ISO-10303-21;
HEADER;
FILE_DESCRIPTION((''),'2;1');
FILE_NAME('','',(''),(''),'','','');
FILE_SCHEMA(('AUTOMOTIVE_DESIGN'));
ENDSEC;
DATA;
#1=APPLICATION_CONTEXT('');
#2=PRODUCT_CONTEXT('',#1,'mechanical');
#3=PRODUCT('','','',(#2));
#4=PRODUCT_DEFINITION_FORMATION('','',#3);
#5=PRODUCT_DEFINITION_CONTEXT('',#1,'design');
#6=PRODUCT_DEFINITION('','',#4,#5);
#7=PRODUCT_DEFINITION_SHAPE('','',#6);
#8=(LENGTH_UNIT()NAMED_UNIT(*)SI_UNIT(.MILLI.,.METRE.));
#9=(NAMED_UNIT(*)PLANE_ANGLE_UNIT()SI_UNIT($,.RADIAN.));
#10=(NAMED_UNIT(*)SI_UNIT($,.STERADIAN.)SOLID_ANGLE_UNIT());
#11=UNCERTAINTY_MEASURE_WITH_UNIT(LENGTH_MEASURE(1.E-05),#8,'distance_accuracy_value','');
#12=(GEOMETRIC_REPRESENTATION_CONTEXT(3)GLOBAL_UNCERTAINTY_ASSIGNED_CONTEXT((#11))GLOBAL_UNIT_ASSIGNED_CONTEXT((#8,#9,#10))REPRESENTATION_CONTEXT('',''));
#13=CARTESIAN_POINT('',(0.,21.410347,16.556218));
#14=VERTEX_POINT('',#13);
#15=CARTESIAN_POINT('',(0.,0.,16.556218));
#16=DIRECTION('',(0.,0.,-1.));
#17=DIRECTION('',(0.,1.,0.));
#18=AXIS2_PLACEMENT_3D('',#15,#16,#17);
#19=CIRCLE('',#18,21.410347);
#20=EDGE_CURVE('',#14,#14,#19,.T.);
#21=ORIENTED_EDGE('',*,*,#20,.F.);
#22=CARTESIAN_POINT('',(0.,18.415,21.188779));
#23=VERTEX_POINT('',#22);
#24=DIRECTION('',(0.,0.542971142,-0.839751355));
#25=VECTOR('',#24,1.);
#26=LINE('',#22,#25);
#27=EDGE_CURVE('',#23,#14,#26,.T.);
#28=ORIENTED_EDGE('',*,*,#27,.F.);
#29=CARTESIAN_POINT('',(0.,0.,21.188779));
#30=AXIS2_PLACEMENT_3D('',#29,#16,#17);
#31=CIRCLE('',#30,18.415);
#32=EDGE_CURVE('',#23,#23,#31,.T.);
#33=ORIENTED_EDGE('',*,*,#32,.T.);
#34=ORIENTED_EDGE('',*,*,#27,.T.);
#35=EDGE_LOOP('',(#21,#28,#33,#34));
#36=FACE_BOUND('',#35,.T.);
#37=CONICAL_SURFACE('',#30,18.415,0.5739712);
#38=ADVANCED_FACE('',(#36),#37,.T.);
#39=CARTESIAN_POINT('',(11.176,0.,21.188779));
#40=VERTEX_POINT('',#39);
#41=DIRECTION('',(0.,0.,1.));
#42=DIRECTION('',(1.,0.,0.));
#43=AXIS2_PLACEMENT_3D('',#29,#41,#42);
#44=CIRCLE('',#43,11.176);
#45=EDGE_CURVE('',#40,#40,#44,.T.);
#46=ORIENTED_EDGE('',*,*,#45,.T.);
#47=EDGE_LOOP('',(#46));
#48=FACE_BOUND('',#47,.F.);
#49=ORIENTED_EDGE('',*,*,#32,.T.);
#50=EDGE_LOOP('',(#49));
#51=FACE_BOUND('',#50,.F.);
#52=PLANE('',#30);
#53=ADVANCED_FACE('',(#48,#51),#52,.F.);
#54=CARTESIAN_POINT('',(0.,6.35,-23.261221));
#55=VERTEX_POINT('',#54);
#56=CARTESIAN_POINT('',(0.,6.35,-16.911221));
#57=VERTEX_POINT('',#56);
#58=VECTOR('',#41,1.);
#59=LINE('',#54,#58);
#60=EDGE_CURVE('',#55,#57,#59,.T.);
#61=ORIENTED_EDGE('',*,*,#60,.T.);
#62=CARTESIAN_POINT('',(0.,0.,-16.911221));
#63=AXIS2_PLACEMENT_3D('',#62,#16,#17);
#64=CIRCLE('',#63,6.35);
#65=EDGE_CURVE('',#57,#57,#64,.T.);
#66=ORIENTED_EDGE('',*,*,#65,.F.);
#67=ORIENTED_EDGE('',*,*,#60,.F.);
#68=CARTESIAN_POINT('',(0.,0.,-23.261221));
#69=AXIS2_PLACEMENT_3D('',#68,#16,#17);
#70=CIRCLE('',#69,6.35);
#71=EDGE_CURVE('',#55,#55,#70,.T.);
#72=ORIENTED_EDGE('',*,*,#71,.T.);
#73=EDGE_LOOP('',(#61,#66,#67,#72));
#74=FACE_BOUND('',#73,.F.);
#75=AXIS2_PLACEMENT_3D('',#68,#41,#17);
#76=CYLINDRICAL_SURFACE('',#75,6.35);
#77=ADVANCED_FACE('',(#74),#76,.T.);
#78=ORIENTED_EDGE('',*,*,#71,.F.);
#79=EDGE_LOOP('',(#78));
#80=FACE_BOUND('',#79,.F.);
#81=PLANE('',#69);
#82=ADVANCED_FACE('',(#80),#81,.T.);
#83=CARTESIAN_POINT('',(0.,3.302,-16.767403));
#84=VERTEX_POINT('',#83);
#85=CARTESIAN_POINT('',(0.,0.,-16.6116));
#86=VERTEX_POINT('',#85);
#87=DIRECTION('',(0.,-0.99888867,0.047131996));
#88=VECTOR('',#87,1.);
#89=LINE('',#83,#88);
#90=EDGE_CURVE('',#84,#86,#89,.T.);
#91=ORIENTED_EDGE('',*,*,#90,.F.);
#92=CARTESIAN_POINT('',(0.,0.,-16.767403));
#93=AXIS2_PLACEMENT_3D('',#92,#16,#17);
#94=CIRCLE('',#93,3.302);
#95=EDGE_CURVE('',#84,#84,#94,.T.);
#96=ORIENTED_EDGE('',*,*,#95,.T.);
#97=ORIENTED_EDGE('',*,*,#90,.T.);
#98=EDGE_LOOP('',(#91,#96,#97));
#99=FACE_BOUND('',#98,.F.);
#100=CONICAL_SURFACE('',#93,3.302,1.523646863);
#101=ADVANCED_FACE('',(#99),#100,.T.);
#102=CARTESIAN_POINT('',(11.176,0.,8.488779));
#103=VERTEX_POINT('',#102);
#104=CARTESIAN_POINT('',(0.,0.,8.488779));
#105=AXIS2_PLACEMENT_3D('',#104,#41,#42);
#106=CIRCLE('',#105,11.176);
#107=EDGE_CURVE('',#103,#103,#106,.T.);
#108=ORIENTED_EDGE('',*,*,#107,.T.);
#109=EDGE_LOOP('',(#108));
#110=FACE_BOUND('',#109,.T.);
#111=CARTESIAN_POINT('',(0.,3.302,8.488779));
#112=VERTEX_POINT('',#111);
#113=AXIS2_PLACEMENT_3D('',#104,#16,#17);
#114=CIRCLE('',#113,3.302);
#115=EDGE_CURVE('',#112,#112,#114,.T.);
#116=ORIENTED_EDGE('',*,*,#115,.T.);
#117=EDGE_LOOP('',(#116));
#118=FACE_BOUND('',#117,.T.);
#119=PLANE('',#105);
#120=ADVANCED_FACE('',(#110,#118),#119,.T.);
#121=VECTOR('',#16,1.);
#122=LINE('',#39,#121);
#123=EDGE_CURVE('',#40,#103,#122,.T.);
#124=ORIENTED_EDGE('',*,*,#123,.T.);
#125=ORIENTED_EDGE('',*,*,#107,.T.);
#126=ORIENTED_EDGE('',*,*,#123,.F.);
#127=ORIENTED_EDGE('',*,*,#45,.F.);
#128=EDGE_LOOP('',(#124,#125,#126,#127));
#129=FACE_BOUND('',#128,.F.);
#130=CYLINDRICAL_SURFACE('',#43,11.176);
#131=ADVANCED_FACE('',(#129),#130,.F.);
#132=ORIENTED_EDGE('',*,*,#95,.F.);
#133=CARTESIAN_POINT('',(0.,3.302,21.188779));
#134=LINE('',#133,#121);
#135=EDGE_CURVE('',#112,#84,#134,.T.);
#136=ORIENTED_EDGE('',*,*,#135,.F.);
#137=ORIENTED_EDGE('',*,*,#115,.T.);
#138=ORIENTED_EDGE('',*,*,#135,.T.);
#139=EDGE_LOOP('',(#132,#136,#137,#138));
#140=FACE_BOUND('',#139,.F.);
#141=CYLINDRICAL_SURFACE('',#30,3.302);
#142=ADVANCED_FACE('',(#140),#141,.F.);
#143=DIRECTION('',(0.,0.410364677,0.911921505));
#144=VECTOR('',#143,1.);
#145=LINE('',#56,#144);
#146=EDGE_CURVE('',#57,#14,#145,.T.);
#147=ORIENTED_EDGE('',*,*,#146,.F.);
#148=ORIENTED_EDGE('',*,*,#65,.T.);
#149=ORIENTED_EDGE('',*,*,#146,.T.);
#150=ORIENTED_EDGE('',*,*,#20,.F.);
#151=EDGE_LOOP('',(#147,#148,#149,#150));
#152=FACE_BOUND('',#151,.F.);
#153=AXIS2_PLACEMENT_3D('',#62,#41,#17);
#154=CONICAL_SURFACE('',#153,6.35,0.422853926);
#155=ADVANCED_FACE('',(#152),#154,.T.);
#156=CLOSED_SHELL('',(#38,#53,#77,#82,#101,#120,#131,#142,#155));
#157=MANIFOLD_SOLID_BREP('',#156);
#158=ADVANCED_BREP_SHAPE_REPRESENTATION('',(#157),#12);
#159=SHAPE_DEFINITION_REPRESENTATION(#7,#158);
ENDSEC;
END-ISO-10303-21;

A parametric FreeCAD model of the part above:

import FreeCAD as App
import Part
import Sketcher
Q = App.Units.Quantity


def edges_at(feature, points):
    """Names of the edges that pass closest to the given points."""
    edges = feature.Shape.Edges
    near = lambda p: min(range(len(edges)), key=lambda i: edges[i].distToShape(Part.Vertex(*p))[0])
    return sorted({f"Edge{near(p) + 1}" for p in points})


def add_polygon(sketch, points):
    """Adds a closed chain of lines whose ends are joined by coincident constraints."""
    first, n = sketch.GeometryCount, len(points)
    for a, b in zip(points, points[1:] + points[:1]):
        sketch.addGeometry(Part.LineSegment(App.Vector(*a, 0), App.Vector(*b, 0)), False)
    for i in range(n):
        sketch.addConstraint(Sketcher.Constraint("Coincident", first + i, 2, first + (i + 1) % n, 1))

doc = App.newDocument("Part")
params = doc.addObject("Spreadsheet::Sheet", "Params")
for row, (alias, value) in enumerate([
    ("sketch1_width", "0.25 in"),
    ("sketch1_width2", "0.795 in"),
    ("revolution_angle", "360 deg"),
    ("sketch2_diameter", "0.88 in"),
    ("sketch2_diameter2", "0.26 in"),
    ("pocket1_length", "0.5 in"),
    ("chamfer_size", "0.2 in"),
], start=1):
    params.set(f"A{row}", alias)
    params.set(f"B{row}", "=" + value)
    params.setAlias(f"B{row}", alias)

body = doc.addObject("PartDesign::Body", "Body")

# Sketch on YZ plane
sketch1 = body.newObject("Sketcher::SketchObject", "Sketch")
sketch1.AttachmentSupport = (doc.getObject("YZ_Plane"), [""])
sketch1.MapMode = "FlatFace"
add_polygon(sketch1, [(23.495, 21.188779), (3.302, 21.188779), (3.302, -16.767403), (0, -16.6116), (0, -23.261221), (6.35, -23.261221), (6.35, -16.911221)])  # lines 0-6
sketch1.addConstraint(Sketcher.Constraint("Horizontal", 0))
sketch1.addConstraint(Sketcher.Constraint("Vertical", 1))
sketch1.addConstraint(Sketcher.Constraint("Vertical", 3))
sketch1.addConstraint(Sketcher.Constraint("Horizontal", 4))
sketch1.addConstraint(Sketcher.Constraint("Vertical", 5))
sketch1.addConstraint(Sketcher.Constraint("PointOnObject", 2, 2, -2))
sketch1.addConstraint(Sketcher.Constraint("Equal", 4, 5))
sketch1.addConstraint(Sketcher.Constraint("DistanceX", 4, 1, 4, 2, Q("0.25 in")))
sketch1.addConstraint(Sketcher.Constraint("DistanceY", 5, 2, 0, 2, Q("1.5 in")))
sketch1.addConstraint(Sketcher.Constraint("DistanceX", 0, 2, 0, 1, Q("0.795 in")))
sketch1.addConstraint(Sketcher.Constraint("DistanceX", -1, 1, 0, 2, Q("0.13 in")))
sketch1.addConstraint(Sketcher.Constraint("DistanceY", 2, 2, -1, 1, Q("0.654 in")))
sketch1.addConstraint(Sketcher.Constraint("DistanceY", 1, 2, 1, 1, 37.956182))
sketch1.addConstraint(Sketcher.Constraint("DistanceY", 3, 2, 3, 1, 6.649621))
sketch1.setExpression("Constraints[14]", "Params.sketch1_width")
sketch1.setExpression("Constraints[16]", "Params.sketch1_width2")
revolution = body.newObject("PartDesign::Revolution", "Revolution")
revolution.Profile = sketch1
revolution.ReferenceAxis = (sketch1, ["V_Axis"])
revolution.setExpression("Angle", "Params.revolution_angle")

# Sketch on XY plane
sketch2 = body.newObject("Sketcher::SketchObject", "Sketch001")
sketch2.AttachmentSupport = (doc.getObject("XY_Plane"), [""])
sketch2.MapMode = "FlatFace"
sketch2.AttachmentOffset = App.Placement(App.Vector(0, 0, 21.188779), App.Rotation())
sketch2.addGeometry(Part.Circle(App.Vector(0, 0, 0), App.Vector(0, 0, 1), 11.176), False)
sketch2.addGeometry(Part.Circle(App.Vector(0, 0, 0), App.Vector(0, 0, 1), 3.302), False)
sketch2.addConstraint(Sketcher.Constraint("Coincident", 0, 3, -1, 1))
sketch2.addConstraint(Sketcher.Constraint("Coincident", 1, 3, -1, 1))
sketch2.addConstraint(Sketcher.Constraint("Diameter", 0, Q("0.88 in")))
sketch2.addConstraint(Sketcher.Constraint("Diameter", 1, Q("0.26 in")))
sketch2.setExpression("Constraints[2]", "Params.sketch2_diameter")
sketch2.setExpression("Constraints[3]", "Params.sketch2_diameter2")
pocket1 = body.newObject("PartDesign::Pocket", "Pocket")
pocket1.Profile = sketch2
pocket1.setExpression("Length", "Params.pocket1_length")
doc.recompute()

chamfer = body.newObject("PartDesign::Chamfer", "Chamfer")
chamfer.Base = (pocket1, edges_at(pocket1, [(0, -23.495, 21.189)]))
chamfer.setExpression("Size", "Params.chamfer_size")

doc.recompute()
